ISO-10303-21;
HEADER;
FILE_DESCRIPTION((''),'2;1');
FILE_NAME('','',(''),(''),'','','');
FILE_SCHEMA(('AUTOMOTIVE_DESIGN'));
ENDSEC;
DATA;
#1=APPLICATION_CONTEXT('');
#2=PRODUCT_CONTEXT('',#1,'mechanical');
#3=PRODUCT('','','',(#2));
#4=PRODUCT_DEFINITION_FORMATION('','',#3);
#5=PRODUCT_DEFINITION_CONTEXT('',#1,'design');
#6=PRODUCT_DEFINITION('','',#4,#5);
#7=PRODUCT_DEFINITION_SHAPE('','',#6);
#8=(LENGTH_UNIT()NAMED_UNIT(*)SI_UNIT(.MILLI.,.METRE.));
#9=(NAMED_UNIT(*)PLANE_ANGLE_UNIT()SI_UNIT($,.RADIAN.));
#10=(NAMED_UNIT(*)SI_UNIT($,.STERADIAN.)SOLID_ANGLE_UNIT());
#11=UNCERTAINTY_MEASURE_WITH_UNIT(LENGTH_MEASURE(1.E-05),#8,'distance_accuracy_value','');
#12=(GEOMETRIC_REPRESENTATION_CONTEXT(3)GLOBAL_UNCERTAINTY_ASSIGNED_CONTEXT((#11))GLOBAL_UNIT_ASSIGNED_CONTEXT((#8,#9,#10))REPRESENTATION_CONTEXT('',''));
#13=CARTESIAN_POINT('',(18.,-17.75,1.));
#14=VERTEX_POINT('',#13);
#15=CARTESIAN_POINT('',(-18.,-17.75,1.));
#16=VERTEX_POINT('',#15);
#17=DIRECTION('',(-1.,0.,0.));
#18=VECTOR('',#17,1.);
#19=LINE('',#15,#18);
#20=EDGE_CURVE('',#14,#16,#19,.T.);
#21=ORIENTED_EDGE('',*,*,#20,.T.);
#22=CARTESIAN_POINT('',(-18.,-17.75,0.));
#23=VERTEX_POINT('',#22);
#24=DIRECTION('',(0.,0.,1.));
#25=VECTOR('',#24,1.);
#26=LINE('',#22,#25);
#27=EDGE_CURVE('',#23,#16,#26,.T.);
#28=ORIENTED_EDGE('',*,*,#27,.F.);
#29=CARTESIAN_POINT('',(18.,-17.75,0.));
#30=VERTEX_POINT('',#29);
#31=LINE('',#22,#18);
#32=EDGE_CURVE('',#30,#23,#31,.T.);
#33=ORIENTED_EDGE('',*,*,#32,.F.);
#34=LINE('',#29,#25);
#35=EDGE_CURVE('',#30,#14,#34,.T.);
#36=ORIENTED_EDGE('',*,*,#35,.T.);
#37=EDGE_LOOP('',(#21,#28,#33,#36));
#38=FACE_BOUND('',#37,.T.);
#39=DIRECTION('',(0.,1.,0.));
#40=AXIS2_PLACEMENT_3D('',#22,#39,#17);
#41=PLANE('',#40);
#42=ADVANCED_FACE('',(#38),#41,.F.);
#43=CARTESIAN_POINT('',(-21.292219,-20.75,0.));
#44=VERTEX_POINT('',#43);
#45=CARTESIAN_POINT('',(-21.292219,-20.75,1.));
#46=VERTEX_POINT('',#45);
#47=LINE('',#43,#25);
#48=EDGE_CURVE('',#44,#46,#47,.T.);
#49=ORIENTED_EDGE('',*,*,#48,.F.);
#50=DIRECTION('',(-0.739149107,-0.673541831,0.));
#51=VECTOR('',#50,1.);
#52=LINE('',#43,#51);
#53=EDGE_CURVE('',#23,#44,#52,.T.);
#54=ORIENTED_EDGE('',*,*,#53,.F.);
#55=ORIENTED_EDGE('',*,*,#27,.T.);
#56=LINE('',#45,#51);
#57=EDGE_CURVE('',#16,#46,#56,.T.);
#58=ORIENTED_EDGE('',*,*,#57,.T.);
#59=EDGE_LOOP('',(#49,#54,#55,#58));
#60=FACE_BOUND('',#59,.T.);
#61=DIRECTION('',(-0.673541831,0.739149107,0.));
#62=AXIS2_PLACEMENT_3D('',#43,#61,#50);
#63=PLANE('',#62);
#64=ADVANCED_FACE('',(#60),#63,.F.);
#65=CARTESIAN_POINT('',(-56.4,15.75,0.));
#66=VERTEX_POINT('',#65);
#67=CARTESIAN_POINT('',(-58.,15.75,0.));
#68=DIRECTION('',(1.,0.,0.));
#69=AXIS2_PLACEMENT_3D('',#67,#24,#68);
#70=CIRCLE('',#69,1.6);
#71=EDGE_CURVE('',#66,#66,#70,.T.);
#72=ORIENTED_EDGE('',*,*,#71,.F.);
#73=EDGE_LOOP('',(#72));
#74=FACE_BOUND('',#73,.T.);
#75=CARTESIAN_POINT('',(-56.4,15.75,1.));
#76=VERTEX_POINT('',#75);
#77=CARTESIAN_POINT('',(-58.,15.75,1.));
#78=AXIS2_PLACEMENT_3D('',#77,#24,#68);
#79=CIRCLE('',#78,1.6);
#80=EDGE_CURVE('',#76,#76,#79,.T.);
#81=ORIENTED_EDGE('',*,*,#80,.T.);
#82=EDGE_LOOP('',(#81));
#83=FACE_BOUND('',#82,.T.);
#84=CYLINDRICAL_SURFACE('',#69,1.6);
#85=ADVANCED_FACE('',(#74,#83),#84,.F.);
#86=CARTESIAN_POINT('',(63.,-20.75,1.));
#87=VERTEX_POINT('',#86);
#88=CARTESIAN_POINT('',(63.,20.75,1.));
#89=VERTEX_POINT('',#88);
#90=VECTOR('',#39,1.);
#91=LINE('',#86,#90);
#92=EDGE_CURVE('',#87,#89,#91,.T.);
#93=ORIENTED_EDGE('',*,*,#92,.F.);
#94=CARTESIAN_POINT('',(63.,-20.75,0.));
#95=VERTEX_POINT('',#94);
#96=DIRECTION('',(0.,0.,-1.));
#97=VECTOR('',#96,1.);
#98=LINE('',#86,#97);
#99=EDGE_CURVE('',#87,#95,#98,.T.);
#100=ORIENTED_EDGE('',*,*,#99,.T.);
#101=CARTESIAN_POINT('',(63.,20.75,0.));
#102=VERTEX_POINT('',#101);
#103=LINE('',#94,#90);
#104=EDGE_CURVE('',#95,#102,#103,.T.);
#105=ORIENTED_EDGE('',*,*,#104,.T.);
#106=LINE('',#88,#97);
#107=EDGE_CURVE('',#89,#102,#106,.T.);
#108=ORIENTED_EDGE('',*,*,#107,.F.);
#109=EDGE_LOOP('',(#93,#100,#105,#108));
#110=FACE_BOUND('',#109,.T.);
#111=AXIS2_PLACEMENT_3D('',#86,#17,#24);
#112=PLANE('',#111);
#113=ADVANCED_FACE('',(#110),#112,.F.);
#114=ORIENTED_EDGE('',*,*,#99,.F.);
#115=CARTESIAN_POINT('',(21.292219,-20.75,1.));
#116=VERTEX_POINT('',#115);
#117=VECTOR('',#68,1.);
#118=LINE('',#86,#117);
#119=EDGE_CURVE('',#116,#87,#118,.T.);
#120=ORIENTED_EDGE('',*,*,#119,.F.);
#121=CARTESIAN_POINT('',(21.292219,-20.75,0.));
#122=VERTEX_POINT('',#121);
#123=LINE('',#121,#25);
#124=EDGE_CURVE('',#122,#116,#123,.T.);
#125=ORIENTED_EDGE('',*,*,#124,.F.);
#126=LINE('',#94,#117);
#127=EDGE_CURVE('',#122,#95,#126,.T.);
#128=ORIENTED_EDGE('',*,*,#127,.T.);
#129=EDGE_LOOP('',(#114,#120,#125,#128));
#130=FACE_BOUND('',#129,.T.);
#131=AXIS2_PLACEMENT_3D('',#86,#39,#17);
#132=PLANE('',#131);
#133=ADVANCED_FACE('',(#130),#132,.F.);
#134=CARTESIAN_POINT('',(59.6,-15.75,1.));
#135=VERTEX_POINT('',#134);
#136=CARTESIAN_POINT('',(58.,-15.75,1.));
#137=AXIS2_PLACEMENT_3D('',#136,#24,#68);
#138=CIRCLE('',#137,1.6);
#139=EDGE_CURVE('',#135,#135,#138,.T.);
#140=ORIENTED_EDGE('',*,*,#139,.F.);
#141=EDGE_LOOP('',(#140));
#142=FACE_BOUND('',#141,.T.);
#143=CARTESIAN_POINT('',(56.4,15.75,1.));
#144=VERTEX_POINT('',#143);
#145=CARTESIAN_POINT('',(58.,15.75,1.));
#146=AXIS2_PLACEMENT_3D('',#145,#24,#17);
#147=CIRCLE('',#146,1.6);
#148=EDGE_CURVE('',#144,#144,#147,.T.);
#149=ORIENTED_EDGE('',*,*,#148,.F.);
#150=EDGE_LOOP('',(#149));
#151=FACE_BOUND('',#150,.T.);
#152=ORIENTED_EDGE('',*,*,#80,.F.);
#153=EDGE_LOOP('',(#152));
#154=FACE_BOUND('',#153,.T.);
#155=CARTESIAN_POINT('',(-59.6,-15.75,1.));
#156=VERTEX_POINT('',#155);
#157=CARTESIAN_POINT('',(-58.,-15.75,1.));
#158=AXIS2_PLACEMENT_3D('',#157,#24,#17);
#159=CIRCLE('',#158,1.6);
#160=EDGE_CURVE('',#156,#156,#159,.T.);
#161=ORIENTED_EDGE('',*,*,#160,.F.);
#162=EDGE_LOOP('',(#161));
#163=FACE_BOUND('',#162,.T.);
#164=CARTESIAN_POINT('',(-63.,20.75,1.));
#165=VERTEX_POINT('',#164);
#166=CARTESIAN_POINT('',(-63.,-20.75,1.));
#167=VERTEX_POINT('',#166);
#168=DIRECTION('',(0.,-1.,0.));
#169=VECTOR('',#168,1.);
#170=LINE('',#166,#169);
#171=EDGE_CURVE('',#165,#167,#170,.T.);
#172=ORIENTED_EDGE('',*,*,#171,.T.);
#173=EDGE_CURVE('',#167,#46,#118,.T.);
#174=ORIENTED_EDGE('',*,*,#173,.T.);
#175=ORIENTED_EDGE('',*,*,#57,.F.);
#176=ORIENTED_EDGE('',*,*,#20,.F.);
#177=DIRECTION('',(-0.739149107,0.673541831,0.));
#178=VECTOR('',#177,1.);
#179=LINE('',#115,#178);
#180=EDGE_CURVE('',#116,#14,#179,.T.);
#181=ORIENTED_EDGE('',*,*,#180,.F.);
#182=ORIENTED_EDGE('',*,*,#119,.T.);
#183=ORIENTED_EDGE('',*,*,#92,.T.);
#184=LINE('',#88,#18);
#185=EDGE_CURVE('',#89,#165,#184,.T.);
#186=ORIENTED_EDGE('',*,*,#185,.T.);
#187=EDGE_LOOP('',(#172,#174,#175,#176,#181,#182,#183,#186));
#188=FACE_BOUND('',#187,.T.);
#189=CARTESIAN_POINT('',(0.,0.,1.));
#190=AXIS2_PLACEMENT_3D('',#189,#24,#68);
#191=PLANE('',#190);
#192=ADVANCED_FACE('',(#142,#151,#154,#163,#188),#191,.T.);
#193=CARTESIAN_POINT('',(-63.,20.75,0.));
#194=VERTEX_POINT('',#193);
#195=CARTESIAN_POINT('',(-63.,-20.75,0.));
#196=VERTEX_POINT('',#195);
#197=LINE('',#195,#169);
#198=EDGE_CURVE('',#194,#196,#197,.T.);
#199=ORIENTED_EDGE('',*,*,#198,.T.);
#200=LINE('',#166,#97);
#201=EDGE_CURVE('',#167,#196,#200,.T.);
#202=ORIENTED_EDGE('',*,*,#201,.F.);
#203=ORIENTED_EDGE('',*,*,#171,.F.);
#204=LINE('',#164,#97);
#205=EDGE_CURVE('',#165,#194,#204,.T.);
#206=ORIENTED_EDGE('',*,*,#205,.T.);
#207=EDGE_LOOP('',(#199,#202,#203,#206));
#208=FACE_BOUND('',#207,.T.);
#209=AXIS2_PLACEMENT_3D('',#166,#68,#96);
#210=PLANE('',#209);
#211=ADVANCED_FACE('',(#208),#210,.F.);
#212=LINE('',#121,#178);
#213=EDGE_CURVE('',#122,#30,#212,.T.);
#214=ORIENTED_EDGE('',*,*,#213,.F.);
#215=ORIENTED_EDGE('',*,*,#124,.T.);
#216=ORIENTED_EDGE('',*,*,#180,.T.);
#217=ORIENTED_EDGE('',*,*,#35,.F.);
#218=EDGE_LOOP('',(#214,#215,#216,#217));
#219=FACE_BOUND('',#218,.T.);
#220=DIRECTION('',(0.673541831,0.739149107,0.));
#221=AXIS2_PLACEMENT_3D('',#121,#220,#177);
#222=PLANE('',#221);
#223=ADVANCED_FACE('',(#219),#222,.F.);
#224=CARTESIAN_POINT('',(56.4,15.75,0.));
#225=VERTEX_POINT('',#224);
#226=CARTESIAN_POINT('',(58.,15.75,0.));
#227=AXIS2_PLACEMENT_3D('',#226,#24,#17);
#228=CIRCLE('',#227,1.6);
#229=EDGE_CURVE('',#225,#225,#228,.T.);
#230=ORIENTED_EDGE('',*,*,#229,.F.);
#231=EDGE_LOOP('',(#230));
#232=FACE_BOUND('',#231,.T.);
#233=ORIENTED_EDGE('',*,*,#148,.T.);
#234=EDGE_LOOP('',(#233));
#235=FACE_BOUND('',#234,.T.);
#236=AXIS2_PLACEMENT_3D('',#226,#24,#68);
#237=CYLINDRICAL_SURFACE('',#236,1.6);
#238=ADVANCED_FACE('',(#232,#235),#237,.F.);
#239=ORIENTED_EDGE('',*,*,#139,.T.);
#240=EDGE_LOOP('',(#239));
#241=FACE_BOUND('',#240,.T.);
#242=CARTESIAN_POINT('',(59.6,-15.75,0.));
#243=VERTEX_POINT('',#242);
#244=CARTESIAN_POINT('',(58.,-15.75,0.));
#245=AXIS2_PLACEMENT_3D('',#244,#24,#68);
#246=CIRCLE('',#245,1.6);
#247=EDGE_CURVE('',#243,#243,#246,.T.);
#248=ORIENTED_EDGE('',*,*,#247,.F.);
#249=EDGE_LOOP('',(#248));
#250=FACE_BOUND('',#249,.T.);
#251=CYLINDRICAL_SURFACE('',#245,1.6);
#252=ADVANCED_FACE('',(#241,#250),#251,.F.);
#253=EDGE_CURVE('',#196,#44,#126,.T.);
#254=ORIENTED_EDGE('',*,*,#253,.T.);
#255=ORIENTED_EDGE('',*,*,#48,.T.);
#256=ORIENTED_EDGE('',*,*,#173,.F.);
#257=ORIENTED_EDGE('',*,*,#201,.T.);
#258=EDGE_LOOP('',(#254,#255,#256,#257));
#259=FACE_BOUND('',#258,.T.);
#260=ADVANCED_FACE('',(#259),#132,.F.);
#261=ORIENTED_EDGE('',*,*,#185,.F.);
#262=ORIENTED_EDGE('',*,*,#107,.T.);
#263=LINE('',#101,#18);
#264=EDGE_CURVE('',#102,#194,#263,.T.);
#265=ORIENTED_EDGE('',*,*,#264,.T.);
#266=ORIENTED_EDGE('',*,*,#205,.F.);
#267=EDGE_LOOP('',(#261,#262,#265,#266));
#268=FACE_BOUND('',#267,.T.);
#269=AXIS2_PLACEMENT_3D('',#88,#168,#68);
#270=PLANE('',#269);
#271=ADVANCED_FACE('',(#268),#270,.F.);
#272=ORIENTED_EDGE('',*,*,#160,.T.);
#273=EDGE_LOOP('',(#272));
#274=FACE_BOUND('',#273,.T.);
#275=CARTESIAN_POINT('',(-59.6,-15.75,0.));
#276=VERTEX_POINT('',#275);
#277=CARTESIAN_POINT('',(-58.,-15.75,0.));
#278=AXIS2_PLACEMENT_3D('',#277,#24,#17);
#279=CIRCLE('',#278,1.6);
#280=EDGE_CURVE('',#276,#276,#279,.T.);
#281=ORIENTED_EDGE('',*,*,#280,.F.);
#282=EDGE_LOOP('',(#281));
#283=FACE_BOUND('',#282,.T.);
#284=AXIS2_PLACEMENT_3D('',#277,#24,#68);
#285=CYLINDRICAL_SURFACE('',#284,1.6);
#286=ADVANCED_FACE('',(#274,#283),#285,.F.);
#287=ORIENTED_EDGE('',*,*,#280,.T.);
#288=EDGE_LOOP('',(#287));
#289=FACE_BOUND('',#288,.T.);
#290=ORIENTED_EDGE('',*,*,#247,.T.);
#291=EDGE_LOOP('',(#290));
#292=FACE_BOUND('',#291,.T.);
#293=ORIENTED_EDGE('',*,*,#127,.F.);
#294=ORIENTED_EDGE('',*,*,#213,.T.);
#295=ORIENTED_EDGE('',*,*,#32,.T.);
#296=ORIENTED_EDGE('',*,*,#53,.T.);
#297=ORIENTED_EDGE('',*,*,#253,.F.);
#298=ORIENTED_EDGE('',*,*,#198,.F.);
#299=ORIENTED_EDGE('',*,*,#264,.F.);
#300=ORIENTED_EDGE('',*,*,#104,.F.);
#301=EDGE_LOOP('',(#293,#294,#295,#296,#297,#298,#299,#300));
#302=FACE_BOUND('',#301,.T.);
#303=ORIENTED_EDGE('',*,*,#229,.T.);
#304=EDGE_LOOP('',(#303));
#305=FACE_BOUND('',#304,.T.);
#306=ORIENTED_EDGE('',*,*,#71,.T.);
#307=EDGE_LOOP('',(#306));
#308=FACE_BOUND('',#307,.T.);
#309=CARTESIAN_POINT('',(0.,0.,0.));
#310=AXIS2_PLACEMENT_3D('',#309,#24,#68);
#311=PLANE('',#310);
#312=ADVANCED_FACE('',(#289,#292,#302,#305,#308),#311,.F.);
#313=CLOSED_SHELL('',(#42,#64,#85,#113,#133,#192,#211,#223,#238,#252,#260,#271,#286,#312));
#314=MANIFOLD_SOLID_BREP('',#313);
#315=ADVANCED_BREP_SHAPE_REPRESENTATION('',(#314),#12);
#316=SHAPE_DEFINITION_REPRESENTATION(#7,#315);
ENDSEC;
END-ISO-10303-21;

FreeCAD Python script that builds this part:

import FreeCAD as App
import Part
import Sketcher
from FreeCAD import Vector

doc = App.newDocument("Part")
body = doc.addObject("PartDesign::Body", "Body")

# Sketch on XY plane
sketch1 = doc.addObject("Sketcher::SketchObject", "Sketch")
body.addObject(sketch1)
sketch1.AttachmentSupport = (doc.XY_Plane, [""])
sketch1.MapMode = "FlatFace"
sketch1.addGeometry(Part.LineSegment(Vector(-63, 21, 0), Vector(-63, -21, 0)), False)
sketch1.addGeometry(Part.LineSegment(Vector(-63, -21, 0), Vector(63, -21, 0)), False)
sketch1.addGeometry(Part.LineSegment(Vector(63, -21, 0), Vector(63, 21, 0)), False)
sketch1.addGeometry(Part.LineSegment(Vector(63, 21, 0), Vector(-63, 21, 0)), False)
sketch1.addConstraint(Sketcher.Constraint("Coincident", 0, 2, 1, 1))
sketch1.addConstraint(Sketcher.Constraint("Coincident", 1, 2, 2, 1))
sketch1.addConstraint(Sketcher.Constraint("Coincident", 2, 2, 3, 1))
sketch1.addConstraint(Sketcher.Constraint("Coincident", 3, 2, 0, 1))
sketch1.addConstraint(Sketcher.Constraint("Vertical", 0))
sketch1.addConstraint(Sketcher.Constraint("Horizontal", 1))
sketch1.addConstraint(Sketcher.Constraint("Vertical", 2))
sketch1.addConstraint(Sketcher.Constraint("Horizontal", 3))
sketch1.addConstraint(Sketcher.Constraint("Symmetric", 0, 2, 2, 2, -1, 1))
sketch1.addConstraint(Sketcher.Constraint("DistanceX", 1, 1, 1, 2, 126.0))
sketch1.addConstraint(Sketcher.Constraint("DistanceY", 0, 2, 0, 1, 41.5))
pad1 = doc.addObject("PartDesign::Pad", "Pad")
body.addObject(pad1)
pad1.Profile = sketch1
pad1.Length = 1

# Sketch on XY plane
sketch2 = doc.addObject("Sketcher::SketchObject", "Sketch001")
body.addObject(sketch2)
sketch2.AttachmentSupport = (doc.XY_Plane, [""])
sketch2.MapMode = "FlatFace"
sketch2.AttachmentOffset = App.Placement(Vector(0, 0, 1), App.Rotation())
sketch2.addGeometry(Part.Circle(Vector(-58, 15.8, 0), Vector(0, 0, 1), 1.6), False)
sketch2.addGeometry(Part.Circle(Vector(-58, -15.8, 0), Vector(0, 0, 1), 1.6), False)
sketch2.addGeometry(Part.Circle(Vector(58, -15.8, 0), Vector(0, 0, 1), 1.6), False)
sketch2.addGeometry(Part.Circle(Vector(58, 15.8, 0), Vector(0, 0, 1), 1.6), False)
sketch2.addConstraint(Sketcher.Constraint("Equal", 0, 1))
sketch2.addConstraint(Sketcher.Constraint("Equal", 1, 2))
sketch2.addConstraint(Sketcher.Constraint("Equal", 2, 3))
sketch2.addConstraint(Sketcher.Constraint("Symmetric", 0, 3, 2, 3, -1, 1))
sketch2.addConstraint(Sketcher.Constraint("Symmetric", 1, 3, 3, 3, -1, 1))
sketch2.addConstraint(Sketcher.Constraint("Symmetric", 1, 3, 2, 3, -2))
sketch2.addConstraint(Sketcher.Constraint("Diameter", 0, 3.2))
sketch2.addConstraint(Sketcher.Constraint("DistanceX", 0, 3, -1, 1, 58.0))
sketch2.addConstraint(Sketcher.Constraint("DistanceY", 1, 3, 0, 3, 31.5))
pocket1 = doc.addObject("PartDesign::Pocket", "Pocket")
body.addObject(pocket1)
pocket1.Profile = sketch2
pocket1.Type = "ThroughAll"

# Sketch on XY plane
sketch3 = doc.addObject("Sketcher::SketchObject", "Sketch002")
body.addObject(sketch3)
sketch3.AttachmentSupport = (doc.XY_Plane, [""])
sketch3.MapMode = "FlatFace"
sketch3.AttachmentOffset = App.Placement(Vector(0, 0, 1), App.Rotation())
sketch3.addGeometry(Part.LineSegment(Vector(-18, -17.8, 0), Vector(-21.3, -20.8, 0)), False)
sketch3.addGeometry(Part.LineSegment(Vector(-21.3, -20.8, 0), Vector(21.3, -20.8, 0)), False)
sketch3.addGeometry(Part.LineSegment(Vector(21.3, -20.8, 0), Vector(18, -17.8, 0)), False)
sketch3.addGeometry(Part.LineSegment(Vector(18, -17.8, 0), Vector(-18, -17.8, 0)), False)
sketch3.addConstraint(Sketcher.Constraint("Coincident", 0, 2, 1, 1))
sketch3.addConstraint(Sketcher.Constraint("Coincident", 1, 2, 2, 1))
sketch3.addConstraint(Sketcher.Constraint("Coincident", 2, 2, 3, 1))
sketch3.addConstraint(Sketcher.Constraint("Coincident", 3, 2, 0, 1))
sketch3.addConstraint(Sketcher.Constraint("Horizontal", 1))
sketch3.addConstraint(Sketcher.Constraint("Horizontal", 3))
sketch3.addConstraint(Sketcher.Constraint("Equal", 0, 2))
sketch3.addConstraint(Sketcher.Constraint("DistanceX", 3, 2, 3, 1, 36.0))
sketch3.addConstraint(Sketcher.Constraint("DistanceX", -1, 1, 2, 2, 18.0))
sketch3.addConstraint(Sketcher.Constraint("DistanceY", 1, 2, 2, 2, 3.0))
sketch3.addConstraint(Sketcher.Constraint("DistanceY", 0, 2, -1, 1, 20.75))
sketch3.addConstraint(Sketcher.Constraint("DistanceX", 1, 1, 1, 2, 42.584438))
pocket2 = doc.addObject("PartDesign::Pocket", "Pocket001")
body.addObject(pocket2)
pocket2.Profile = sketch3
pocket2.Type = "ThroughAll"

doc.recompute()
